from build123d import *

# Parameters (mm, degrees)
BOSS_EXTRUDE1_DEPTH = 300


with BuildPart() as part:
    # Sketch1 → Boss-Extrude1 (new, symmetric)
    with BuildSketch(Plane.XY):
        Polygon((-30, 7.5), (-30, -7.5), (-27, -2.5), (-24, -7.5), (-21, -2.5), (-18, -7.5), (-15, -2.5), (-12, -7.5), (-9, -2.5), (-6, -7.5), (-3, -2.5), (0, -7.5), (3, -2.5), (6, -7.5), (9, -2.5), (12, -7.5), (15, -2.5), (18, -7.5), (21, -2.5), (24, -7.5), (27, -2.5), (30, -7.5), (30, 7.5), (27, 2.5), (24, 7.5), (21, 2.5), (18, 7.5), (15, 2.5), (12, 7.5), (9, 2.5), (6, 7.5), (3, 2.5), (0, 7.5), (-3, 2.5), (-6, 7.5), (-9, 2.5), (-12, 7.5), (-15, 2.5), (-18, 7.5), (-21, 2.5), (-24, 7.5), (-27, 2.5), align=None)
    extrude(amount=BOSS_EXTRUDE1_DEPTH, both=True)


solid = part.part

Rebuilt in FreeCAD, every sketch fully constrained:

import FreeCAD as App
import Part
import Sketcher

V = App.Vector


def add_polygon(sketch, points):
    """Adds a closed chain of lines whose ends are joined by coincident constraints."""
    first, n = sketch.GeometryCount, len(points)
    for a, b in zip(points, points[1:] + points[:1]):
        sketch.addGeometry(Part.LineSegment(App.Vector(*a, 0), App.Vector(*b, 0)), False)
    for i in range(n):
        sketch.addConstraint(Sketcher.Constraint("Coincident", first + i, 2, first + (i + 1) % n, 1))

doc = App.newDocument("Part")
body = doc.addObject("PartDesign::Body", "Body")

sketch1 = doc.addObject("Sketcher::SketchObject", "Sketch")
body.addObject(sketch1)
sketch1.AttachmentSupport = (doc.XY_Plane, [""])
sketch1.MapMode = "FlatFace"
add_polygon(sketch1, [(-30, 8), (-30, -8), (-27, -2), (-24, -8), (-21, -2), (-18, -8), (-15, -2), (-12, -8), (-9, -2), (-6, -8), (-3, -2), (0, -8), (3, -2), (6, -8), (9, -2), (12, -8), (15, -2), (18, -8), (21, -2), (24, -8), (27, -2), (30, -8), (30, 8), (27, 2), (24, 8), (21, 2), (18, 8), (15, 2), (12, 8), (9, 2), (6, 8), (3, 2), (0, 8), (-3, 2), (-6, 8), (-9, 2), (-12, 8), (-15, 2), (-18, 8), (-21, 2), (-24, 8), (-27, 2)])
sketch1.addConstraint(Sketcher.Constraint("Vertical", 0))
sketch1.addConstraint(Sketcher.Constraint("Vertical", 21))
sketch1.addConstraint(Sketcher.Constraint("Symmetric", 0, 2, 21, 2, -1, 1))
sketch1.addConstraint(Sketcher.Constraint("Symmetric", 1, 2, 22, 2, -1, 1))
sketch1.addConstraint(Sketcher.Constraint("Symmetric", 2, 2, 23, 2, -1, 1))
sketch1.addConstraint(Sketcher.Constraint("Symmetric", 3, 2, 24, 2, -1, 1))
sketch1.addConstraint(Sketcher.Constraint("Symmetric", 4, 2, 25, 2, -1, 1))
sketch1.addConstraint(Sketcher.Constraint("Symmetric", 5, 2, 26, 2, -1, 1))
sketch1.addConstraint(Sketcher.Constraint("Symmetric", 6, 2, 27, 2, -1, 1))
sketch1.addConstraint(Sketcher.Constraint("Symmetric", 7, 2, 28, 2, -1, 1))
sketch1.addConstraint(Sketcher.Constraint("Symmetric", 8, 2, 29, 2, -1, 1))
sketch1.addConstraint(Sketcher.Constraint("Symmetric", 9, 2, 30, 2, -1, 1))
sketch1.addConstraint(Sketcher.Constraint("Symmetric", 10, 2, 31, 2, -1, 1))
sketch1.addConstraint(Sketcher.Constraint("Symmetric", 11, 2, 32, 2, -1, 1))
sketch1.addConstraint(Sketcher.Constraint("Symmetric", 12, 2, 33, 2, -1, 1))
sketch1.addConstraint(Sketcher.Constraint("Symmetric", 13, 2, 34, 2, -1, 1))
sketch1.addConstraint(Sketcher.Constraint("Symmetric", 14, 2, 35, 2, -1, 1))
sketch1.addConstraint(Sketcher.Constraint("Symmetric", 15, 2, 36, 2, -1, 1))
sketch1.addConstraint(Sketcher.Constraint("Symmetric", 16, 2, 37, 2, -1, 1))
sketch1.addConstraint(Sketcher.Constraint("Symmetric", 17, 2, 38, 2, -1, 1))
sketch1.addConstraint(Sketcher.Constraint("Symmetric", 18, 2, 39, 2, -1, 1))
sketch1.addConstraint(Sketcher.Constraint("Symmetric", 19, 2, 40, 2, -1, 1))
sketch1.addConstraint(Sketcher.Constraint("Symmetric", 9, 2, 11, 2, -2))
sketch1.addConstraint(Sketcher.Constraint("Symmetric", 8, 2, 12, 2, -2))
sketch1.addConstraint(Sketcher.Constraint("Symmetric", 7, 2, 13, 2, -2))
sketch1.addConstraint(Sketcher.Constraint("Symmetric", 6, 2, 14, 2, -2))
sketch1.addConstraint(Sketcher.Constraint("Symmetric", 5, 2, 15, 2, -2))
sketch1.addConstraint(Sketcher.Constraint("Symmetric", 4, 2, 16, 2, -2))
sketch1.addConstraint(Sketcher.Constraint("Symmetric", 3, 2, 17, 2, -2))
sketch1.addConstraint(Sketcher.Constraint("Symmetric", 2, 2, 18, 2, -2))
sketch1.addConstraint(Sketcher.Constraint("Symmetric", 1, 2, 19, 2, -2))
sketch1.addConstraint(Sketcher.Constraint("PointOnObject", 10, 2, -2))
sketch1.addConstraint(Sketcher.Constraint("Parallel", 1, 3))
sketch1.addConstraint(Sketcher.Constraint("Parallel", 2, 4))
sketch1.addConstraint(Sketcher.Constraint("Parallel", 3, 5))
sketch1.addConstraint(Sketcher.Constraint("Parallel", 4, 6))
sketch1.addConstraint(Sketcher.Constraint("Parallel", 5, 7))
sketch1.addConstraint(Sketcher.Constraint("Parallel", 6, 8))
sketch1.addConstraint(Sketcher.Constraint("Parallel", 7, 9))
sketch1.addConstraint(Sketcher.Constraint("Parallel", 8, 10))
sketch1.addConstraint(Sketcher.Constraint("Parallel", 9, 11))
sketch1.addConstraint(Sketcher.Constraint("Parallel", 18, 20))
sketch1.addConstraint(Sketcher.Constraint("Parallel", 39, 41))
sketch1.addConstraint(Sketcher.Constraint("Horizontal", 0, 2, 2, 2))
sketch1.addConstraint(Sketcher.Constraint("Horizontal", 1, 2, 3, 2))
sketch1.addConstraint(Sketcher.Constraint("Horizontal", 2, 2, 4, 2))
sketch1.addConstraint(Sketcher.Constraint("Horizontal", 3, 2, 5, 2))
sketch1.addConstraint(Sketcher.Constraint("Horizontal", 4, 2, 6, 2))
sketch1.addConstraint(Sketcher.Constraint("Horizontal", 5, 2, 7, 2))
sketch1.addConstraint(Sketcher.Constraint("Horizontal", 6, 2, 8, 2))
sketch1.addConstraint(Sketcher.Constraint("Horizontal", 7, 2, 9, 2))
sketch1.addConstraint(Sketcher.Constraint("Horizontal", 8, 2, 10, 2))
sketch1.addConstraint(Sketcher.Constraint("DistanceY", 0, 2, 0, 1, 15.0))
sketch1.addConstraint(Sketcher.Constraint("DistanceX", 0, 2, -1, 1, 30.0))
sketch1.addConstraint(Sketcher.Constraint("DistanceY", 0, 2, 1, 2, 5.0))
pad1 = doc.addObject("PartDesign::Pad", "Pad")
body.addObject(pad1)
pad1.Profile = sketch1
pad1.Length = 600
pad1.Midplane = True

doc.recompute()
